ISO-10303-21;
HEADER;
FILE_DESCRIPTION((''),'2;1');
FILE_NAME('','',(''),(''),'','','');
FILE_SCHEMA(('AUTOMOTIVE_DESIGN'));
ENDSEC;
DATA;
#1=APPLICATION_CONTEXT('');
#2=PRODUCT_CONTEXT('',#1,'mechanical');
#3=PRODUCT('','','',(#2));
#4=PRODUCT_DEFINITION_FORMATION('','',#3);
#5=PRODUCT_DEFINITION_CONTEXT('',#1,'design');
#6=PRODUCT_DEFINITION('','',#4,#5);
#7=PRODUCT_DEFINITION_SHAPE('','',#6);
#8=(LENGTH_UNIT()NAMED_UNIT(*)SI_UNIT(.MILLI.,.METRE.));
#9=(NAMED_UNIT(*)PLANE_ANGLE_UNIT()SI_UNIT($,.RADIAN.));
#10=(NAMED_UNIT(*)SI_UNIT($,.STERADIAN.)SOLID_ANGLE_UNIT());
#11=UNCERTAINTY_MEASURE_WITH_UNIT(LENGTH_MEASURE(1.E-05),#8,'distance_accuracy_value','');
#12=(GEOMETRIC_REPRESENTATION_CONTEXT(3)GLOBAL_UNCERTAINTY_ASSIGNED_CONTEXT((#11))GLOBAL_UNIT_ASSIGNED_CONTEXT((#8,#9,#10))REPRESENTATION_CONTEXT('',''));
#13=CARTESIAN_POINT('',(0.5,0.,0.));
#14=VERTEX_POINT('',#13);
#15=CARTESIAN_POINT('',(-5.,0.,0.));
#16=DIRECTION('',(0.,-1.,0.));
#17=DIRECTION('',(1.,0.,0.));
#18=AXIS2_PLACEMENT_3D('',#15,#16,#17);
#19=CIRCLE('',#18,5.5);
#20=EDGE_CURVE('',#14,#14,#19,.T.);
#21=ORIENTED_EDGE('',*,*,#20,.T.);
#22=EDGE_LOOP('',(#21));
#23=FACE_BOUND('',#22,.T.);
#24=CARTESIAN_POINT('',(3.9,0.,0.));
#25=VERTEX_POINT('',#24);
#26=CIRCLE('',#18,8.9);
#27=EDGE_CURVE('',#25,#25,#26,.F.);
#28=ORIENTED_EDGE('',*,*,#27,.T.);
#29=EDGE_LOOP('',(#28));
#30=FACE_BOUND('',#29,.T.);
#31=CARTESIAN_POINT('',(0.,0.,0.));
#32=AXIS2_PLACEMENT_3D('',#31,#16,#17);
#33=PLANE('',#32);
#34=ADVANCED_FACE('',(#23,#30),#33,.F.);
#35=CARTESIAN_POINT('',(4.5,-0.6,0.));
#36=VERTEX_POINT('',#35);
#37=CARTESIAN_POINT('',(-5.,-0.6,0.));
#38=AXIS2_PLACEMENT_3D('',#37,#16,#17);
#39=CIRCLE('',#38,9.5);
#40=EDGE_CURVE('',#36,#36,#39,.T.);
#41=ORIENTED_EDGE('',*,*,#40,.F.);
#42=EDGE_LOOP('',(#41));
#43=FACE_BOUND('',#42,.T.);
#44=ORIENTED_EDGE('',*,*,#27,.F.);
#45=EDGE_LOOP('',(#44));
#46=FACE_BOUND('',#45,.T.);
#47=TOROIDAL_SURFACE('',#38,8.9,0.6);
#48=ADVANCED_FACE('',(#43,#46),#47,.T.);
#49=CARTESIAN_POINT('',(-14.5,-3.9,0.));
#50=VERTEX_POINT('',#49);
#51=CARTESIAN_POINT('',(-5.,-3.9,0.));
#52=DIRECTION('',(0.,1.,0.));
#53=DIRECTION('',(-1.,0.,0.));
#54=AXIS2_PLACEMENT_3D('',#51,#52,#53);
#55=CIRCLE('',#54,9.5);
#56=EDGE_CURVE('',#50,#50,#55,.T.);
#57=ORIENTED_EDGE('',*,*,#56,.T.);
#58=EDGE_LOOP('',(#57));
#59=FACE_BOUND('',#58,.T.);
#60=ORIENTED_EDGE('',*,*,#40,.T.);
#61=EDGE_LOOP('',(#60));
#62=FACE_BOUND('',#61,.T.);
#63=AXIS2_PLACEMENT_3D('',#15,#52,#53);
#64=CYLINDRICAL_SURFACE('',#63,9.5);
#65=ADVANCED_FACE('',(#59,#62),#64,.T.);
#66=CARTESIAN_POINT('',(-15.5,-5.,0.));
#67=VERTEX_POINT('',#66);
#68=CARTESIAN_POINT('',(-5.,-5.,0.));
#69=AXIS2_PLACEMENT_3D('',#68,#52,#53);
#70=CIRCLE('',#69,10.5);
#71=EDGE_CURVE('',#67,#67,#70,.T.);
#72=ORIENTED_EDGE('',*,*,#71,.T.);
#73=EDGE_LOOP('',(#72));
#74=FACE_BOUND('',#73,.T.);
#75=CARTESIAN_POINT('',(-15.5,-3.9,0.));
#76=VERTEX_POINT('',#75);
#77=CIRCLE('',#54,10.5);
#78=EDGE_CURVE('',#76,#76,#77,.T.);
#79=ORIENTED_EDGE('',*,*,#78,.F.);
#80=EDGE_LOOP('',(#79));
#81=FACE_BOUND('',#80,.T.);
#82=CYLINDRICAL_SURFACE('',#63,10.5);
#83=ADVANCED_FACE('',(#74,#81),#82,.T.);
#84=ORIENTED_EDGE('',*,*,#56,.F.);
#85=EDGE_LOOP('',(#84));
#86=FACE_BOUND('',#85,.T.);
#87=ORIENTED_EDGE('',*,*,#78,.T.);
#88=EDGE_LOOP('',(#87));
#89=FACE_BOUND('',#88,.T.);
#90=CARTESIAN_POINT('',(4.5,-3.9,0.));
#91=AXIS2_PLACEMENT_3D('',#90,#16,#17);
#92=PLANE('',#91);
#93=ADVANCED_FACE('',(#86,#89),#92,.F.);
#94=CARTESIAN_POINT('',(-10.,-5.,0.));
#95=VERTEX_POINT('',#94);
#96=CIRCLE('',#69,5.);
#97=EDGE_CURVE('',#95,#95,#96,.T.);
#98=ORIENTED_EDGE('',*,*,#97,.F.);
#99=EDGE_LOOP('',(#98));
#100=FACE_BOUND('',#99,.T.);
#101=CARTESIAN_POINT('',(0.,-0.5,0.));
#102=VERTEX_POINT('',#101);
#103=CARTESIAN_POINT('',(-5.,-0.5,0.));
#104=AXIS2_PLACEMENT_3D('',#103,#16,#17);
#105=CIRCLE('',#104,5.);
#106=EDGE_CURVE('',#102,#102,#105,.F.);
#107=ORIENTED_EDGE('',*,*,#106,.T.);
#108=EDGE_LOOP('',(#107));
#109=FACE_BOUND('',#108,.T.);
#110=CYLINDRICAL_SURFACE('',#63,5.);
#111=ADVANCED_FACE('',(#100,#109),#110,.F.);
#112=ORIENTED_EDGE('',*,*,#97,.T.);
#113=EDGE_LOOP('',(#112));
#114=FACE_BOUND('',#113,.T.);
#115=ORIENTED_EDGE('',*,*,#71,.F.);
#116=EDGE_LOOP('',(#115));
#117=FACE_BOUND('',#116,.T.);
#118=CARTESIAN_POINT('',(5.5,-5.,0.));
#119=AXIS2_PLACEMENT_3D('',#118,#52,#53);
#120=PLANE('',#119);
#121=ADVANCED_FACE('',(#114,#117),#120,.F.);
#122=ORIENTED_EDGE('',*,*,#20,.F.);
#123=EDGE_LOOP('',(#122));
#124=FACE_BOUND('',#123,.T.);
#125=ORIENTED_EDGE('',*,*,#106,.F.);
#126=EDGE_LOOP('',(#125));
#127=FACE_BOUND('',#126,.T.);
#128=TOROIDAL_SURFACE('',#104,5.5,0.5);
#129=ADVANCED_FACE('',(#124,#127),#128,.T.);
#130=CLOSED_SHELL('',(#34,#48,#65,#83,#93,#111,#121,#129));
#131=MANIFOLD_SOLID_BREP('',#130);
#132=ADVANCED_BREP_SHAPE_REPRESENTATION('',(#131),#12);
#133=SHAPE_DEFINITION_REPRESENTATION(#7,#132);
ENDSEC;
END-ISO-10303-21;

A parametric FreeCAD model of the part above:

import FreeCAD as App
import Part
import Sketcher
Q = App.Units.Quantity


def edges_at(feature, points):
    """Names of the edges that pass closest to the given points."""
    edges = feature.Shape.Edges
    near = lambda p: min(range(len(edges)), key=lambda i: edges[i].distToShape(Part.Vertex(*p))[0])
    return sorted({f"Edge{near(p) + 1}" for p in points})


def add_polygon(sketch, points):
    """Adds a closed chain of lines whose ends are joined by coincident constraints."""
    first, n = sketch.GeometryCount, len(points)
    for a, b in zip(points, points[1:] + points[:1]):
        sketch.addGeometry(Part.LineSegment(App.Vector(*a, 0), App.Vector(*b, 0)), False)
    for i in range(n):
        sketch.addConstraint(Sketcher.Constraint("Coincident", first + i, 2, first + (i + 1) % n, 1))

doc = App.newDocument("Part")
params = doc.addObject("Spreadsheet::Sheet", "Params")
for row, (alias, value) in enumerate([
    ("sketch1_width", "1 mm"),
    ("sketch1_height", "5 mm"),
    ("sketch1_width2", "4.5 mm"),
    ("sketch1_height2", "1.1 mm"),
    ("revolution_angle", "360 deg"),
    ("fillet_radius", "0.6 mm"),
    ("fillet2_radius", "0.5 mm"),
], start=1):
    params.set(f"A{row}", alias)
    params.set(f"B{row}", "=" + value)
    params.setAlias(f"B{row}", alias)

body = doc.addObject("PartDesign::Body", "Body")

# Sketch on XY plane
sketch1 = body.newObject("Sketcher::SketchObject", "Sketch")
sketch1.AttachmentSupport = (doc.getObject("XY_Plane"), [""])
sketch1.MapMode = "FlatFace"
add_polygon(sketch1, [(4.5, 0), (0, 0), (0, -5), (5.5, -5), (5.5, -3.9), (4.5, -3.9)])  # lines 0-5
sketch1.addGeometry(Part.LineSegment(App.Vector(-5, 0, 0), App.Vector(-5, -5, 0)), True)  # axis
sketch1.addConstraint(Sketcher.Constraint("Horizontal", 0))
sketch1.addConstraint(Sketcher.Constraint("Vertical", 1))
sketch1.addConstraint(Sketcher.Constraint("Horizontal", 2))
sketch1.addConstraint(Sketcher.Constraint("Vertical", 3))
sketch1.addConstraint(Sketcher.Constraint("Horizontal", 4))
sketch1.addConstraint(Sketcher.Constraint("Vertical", 5))
sketch1.addConstraint(Sketcher.Constraint("Vertical", 6))
sketch1.addConstraint(Sketcher.Constraint("Coincident", 0, 2, -1, 1))
sketch1.addConstraint(Sketcher.Constraint("PointOnObject", 6, 1, -1))
sketch1.addConstraint(Sketcher.Constraint("Horizontal", 2, 2, 6, 2))
sketch1.addConstraint(Sketcher.Constraint("DistanceX", 4, 2, 4, 1, Q("1 mm")))
sketch1.addConstraint(Sketcher.Constraint("DistanceY", 1, 2, 1, 1, Q("5 mm")))
sketch1.addConstraint(Sketcher.Constraint("DistanceX", 0, 2, 0, 1, Q("4.5 mm")))
sketch1.addConstraint(Sketcher.Constraint("DistanceY", 3, 1, 3, 2, Q("1.1 mm")))
sketch1.addConstraint(Sketcher.Constraint("DistanceX", 6, 1, -1, 1, Q("5 mm")))
sketch1.setExpression("Constraints[16]", "Params.sketch1_width")
sketch1.setExpression("Constraints[17]", "Params.sketch1_height")
sketch1.setExpression("Constraints[18]", "Params.sketch1_width2")
sketch1.setExpression("Constraints[19]", "Params.sketch1_height2")
revolution = body.newObject("PartDesign::Revolution", "Revolution")
revolution.Profile = sketch1
revolution.ReferenceAxis = (sketch1, ["Axis0"])
revolution.setExpression("Angle", "Params.revolution_angle")
doc.recompute()

fillet = body.newObject("PartDesign::Fillet", "Fillet")
fillet.Base = (revolution, edges_at(revolution, [(4.5, 0, 0)]))
fillet.setExpression("Radius", "Params.fillet_radius")
doc.recompute()

fillet2 = body.newObject("PartDesign::Fillet", "Fillet001")
fillet2.Base = (fillet, edges_at(fillet, [(0, 0, 0)]))
fillet2.setExpression("Radius", "Params.fillet2_radius")

doc.recompute()
